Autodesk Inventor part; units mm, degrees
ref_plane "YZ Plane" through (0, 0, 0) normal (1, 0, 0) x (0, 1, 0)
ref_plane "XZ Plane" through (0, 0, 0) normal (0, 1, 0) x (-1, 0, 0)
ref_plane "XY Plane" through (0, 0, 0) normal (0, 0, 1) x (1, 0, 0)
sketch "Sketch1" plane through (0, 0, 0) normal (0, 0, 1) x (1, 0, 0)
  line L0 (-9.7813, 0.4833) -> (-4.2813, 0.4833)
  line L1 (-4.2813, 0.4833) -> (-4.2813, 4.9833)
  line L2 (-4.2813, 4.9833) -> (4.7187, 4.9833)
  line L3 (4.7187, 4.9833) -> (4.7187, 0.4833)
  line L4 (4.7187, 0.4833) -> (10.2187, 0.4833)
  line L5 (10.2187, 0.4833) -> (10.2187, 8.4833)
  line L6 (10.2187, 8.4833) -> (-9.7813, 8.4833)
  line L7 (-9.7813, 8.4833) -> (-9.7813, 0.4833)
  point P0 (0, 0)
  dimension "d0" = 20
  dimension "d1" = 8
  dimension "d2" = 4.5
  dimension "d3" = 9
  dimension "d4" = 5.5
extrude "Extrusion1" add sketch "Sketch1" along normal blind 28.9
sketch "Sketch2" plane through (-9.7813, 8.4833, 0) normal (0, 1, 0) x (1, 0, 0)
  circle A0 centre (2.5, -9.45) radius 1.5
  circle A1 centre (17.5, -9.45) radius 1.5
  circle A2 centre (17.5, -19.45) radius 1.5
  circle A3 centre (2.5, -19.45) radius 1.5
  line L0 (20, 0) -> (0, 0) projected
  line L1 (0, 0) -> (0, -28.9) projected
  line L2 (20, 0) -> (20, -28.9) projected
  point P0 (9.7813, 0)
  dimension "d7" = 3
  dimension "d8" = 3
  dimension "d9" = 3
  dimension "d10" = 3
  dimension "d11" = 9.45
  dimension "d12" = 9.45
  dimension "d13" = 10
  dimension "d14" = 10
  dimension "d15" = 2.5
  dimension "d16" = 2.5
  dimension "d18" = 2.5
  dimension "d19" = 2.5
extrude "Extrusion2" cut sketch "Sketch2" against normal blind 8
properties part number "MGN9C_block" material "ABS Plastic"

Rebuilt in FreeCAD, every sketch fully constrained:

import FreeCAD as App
import Part
import Sketcher

V = App.Vector
Q = App.Units.Quantity


def add_polygon(sketch, points):
    """Adds a closed chain of lines whose ends are joined by coincident constraints."""
    first, n = sketch.GeometryCount, len(points)
    for a, b in zip(points, points[1:] + points[:1]):
        sketch.addGeometry(Part.LineSegment(App.Vector(*a, 0), App.Vector(*b, 0)), False)
    for i in range(n):
        sketch.addConstraint(Sketcher.Constraint("Coincident", first + i, 2, first + (i + 1) % n, 1))

doc = App.newDocument("Part")
body = doc.addObject("PartDesign::Body", "Body")

# Sketch on XY plane
sketch1 = body.newObject("Sketcher::SketchObject", "Sketch")
sketch1.AttachmentSupport = (doc.getObject("XY_Plane"), [""])
sketch1.MapMode = "FlatFace"
add_polygon(sketch1, [(-9.8, 8.5), (-9.8, 0.5), (-4.3, 0.5), (-4.3, 5), (4.7, 5), (4.7, 0.5), (10.2, 0.5), (10.2, 8.5)])  # lines 0-7
sketch1.addConstraint(Sketcher.Constraint("Vertical", 0))
sketch1.addConstraint(Sketcher.Constraint("Horizontal", 1))
sketch1.addConstraint(Sketcher.Constraint("Vertical", 2))
sketch1.addConstraint(Sketcher.Constraint("Horizontal", 3))
sketch1.addConstraint(Sketcher.Constraint("Vertical", 4))
sketch1.addConstraint(Sketcher.Constraint("Horizontal", 5))
sketch1.addConstraint(Sketcher.Constraint("Vertical", 6))
sketch1.addConstraint(Sketcher.Constraint("Horizontal", 7))
sketch1.addConstraint(Sketcher.Constraint("Horizontal", 1, 2, 4, 2))
sketch1.addConstraint(Sketcher.Constraint("Equal", 1, 5))
sketch1.addConstraint(Sketcher.Constraint("DistanceX", 3, 1, 3, 2, Q("9 mm")))
sketch1.addConstraint(Sketcher.Constraint("DistanceX", 7, 2, 7, 1, Q("20 mm")))
sketch1.addConstraint(Sketcher.Constraint("DistanceY", 0, 2, 0, 1, Q("8 mm")))
sketch1.addConstraint(Sketcher.Constraint("DistanceY", 2, 1, 2, 2, Q("4.5 mm")))
sketch1.addConstraint(Sketcher.Constraint("DistanceX", 0, 2, -1, 1, Q("9.7813 mm")))
sketch1.addConstraint(Sketcher.Constraint("DistanceY", -1, 1, 0, 2, Q("0.4833 mm")))
pad1 = body.newObject("PartDesign::Pad", "Pad")
pad1.Profile = sketch1
pad1.Length = 28.9

# Sketch on XZ plane
sketch2 = body.newObject("Sketcher::SketchObject", "Sketch001")
sketch2.AttachmentSupport = (doc.getObject("XZ_Plane"), [""])
sketch2.MapMode = "FlatFace"
sketch2.AttachmentOffset = App.Placement(V(0, 0, -8.4833), App.Rotation())
sketch2.addGeometry(Part.Circle(V(-7.3, 9.4, 0), V(0, 0, 1), 1.5), False)
sketch2.addGeometry(Part.Circle(V(7.7, 9.4, 0), V(0, 0, 1), 1.5), False)
sketch2.addGeometry(Part.Circle(V(7.7, 19.4, 0), V(0, 0, 1), 1.5), False)
sketch2.addGeometry(Part.Circle(V(-7.3, 19.4, 0), V(0, 0, 1), 1.5), False)
sketch2.addConstraint(Sketcher.Constraint("Equal", 0, 1))
sketch2.addConstraint(Sketcher.Constraint("Equal", 1, 2))
sketch2.addConstraint(Sketcher.Constraint("Equal", 2, 3))
sketch2.addConstraint(Sketcher.Constraint("Horizontal", 0, 3, 1, 3))
sketch2.addConstraint(Sketcher.Constraint("Horizontal", 2, 3, 3, 3))
sketch2.addConstraint(Sketcher.Constraint("Vertical", 1, 3, 2, 3))
sketch2.addConstraint(Sketcher.Constraint("Vertical", 0, 3, 3, 3))
sketch2.addConstraint(Sketcher.Constraint("Diameter", 0, Q("3 mm")))
sketch2.addConstraint(Sketcher.Constraint("DistanceY", 1, 3, 2, 3, Q("10 mm")))
sketch2.addConstraint(Sketcher.Constraint("DistanceY", -1, 1, 0, 3, Q("9.45 mm")))
sketch2.addConstraint(Sketcher.Constraint("DistanceX", 0, 3, 1, 3, Q("15 mm")))
sketch2.addConstraint(Sketcher.Constraint("DistanceX", 0, 3, -1, 1, Q("7.2813 mm")))
pocket1 = body.newObject("PartDesign::Pocket", "Pocket")
pocket1.Profile = sketch2
pocket1.Length = 8
pocket1.Reversed = True

doc.recompute()
